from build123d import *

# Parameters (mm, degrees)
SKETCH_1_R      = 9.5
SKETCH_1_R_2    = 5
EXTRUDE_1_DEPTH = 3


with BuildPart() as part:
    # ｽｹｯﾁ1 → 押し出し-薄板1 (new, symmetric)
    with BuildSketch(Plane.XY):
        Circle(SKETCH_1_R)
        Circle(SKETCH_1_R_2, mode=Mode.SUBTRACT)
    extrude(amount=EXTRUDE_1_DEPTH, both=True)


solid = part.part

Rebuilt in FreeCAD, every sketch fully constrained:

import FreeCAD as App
import Part
import Sketcher

V = App.Vector

doc = App.newDocument("Part")
body = doc.addObject("PartDesign::Body", "Body")

sketch1 = body.newObject("Sketcher::SketchObject", "Sketch")
sketch1.AttachmentSupport = (doc.getObject("XY_Plane"), [""])
sketch1.MapMode = "FlatFace"
sketch1.addGeometry([
    Part.Circle(V(0, 0, 0), V(0, 0, 1), 10),
    Part.Circle(V(0, 0, 0), V(0, 0, 1), 5),
], False)
sketch1.addConstraint([
    Sketcher.Constraint("Coincident", 0, 3, -1, 1),
    Sketcher.Constraint("Coincident", 1, 3, -1, 1),
    Sketcher.Constraint("Diameter", 0, 19.0),
    Sketcher.Constraint("Diameter", 1, 10.0),
])
pad1 = body.newObject("PartDesign::Pad", "Pad")
pad1.Profile = sketch1
pad1.Length = 6
pad1.Midplane = True

doc.recompute()
